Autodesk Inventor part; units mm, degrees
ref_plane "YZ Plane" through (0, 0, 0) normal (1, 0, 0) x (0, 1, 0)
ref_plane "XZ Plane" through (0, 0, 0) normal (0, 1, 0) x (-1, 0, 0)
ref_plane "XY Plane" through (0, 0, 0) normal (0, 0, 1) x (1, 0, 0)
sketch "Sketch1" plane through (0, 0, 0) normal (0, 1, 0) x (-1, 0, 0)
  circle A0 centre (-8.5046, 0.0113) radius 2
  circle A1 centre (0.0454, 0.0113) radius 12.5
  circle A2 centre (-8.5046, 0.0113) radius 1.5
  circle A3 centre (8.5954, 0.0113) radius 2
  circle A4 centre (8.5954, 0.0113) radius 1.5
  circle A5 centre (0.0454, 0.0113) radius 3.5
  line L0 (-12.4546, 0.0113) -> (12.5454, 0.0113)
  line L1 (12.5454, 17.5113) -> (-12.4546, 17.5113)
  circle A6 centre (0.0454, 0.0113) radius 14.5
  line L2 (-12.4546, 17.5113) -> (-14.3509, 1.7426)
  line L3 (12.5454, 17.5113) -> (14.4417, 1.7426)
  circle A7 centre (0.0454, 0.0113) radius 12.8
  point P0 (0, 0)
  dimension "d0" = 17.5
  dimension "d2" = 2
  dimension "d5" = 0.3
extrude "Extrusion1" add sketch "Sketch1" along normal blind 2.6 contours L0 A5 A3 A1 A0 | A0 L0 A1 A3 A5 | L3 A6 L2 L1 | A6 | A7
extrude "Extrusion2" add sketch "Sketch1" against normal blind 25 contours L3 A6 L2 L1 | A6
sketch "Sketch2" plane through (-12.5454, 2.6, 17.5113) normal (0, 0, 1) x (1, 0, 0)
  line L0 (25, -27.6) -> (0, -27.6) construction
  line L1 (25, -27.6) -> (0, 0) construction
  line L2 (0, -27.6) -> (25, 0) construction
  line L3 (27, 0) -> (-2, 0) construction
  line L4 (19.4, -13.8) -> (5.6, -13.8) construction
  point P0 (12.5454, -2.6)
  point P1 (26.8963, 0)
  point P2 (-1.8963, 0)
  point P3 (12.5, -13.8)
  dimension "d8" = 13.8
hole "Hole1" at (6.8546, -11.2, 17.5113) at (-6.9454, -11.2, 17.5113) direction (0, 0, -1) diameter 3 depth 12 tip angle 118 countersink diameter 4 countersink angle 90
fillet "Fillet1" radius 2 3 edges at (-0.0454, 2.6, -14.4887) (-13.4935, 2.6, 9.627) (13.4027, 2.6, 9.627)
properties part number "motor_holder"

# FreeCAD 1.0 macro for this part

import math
import FreeCAD as App
import Part
import Sketcher

V = App.Vector


def edges_at(feature, points):
    """Names of the edges that pass closest to the given points."""
    edges = feature.Shape.Edges
    near = lambda p: min(range(len(edges)), key=lambda i: edges[i].distToShape(Part.Vertex(*p))[0])
    return sorted({f"Edge{near(p) + 1}" for p in points})

doc = App.newDocument("Part")
params = doc.addObject("Spreadsheet::Sheet", "Params")
for row, (alias, value) in enumerate([
    ("sketch1_diameter", "4 mm"),
    ("sketch1_diameter2", "7 mm"),
    ("sketch1_radius", "14.5 mm"),
    ("sketch1_width", "25 mm"),
    ("pad1_length", "2.6 mm"),
    ("sketch2_diameter", "25.6 mm"),
    ("sketch2_radius", "14.5 mm"),
    ("sketch2_width", "25 mm"),
    ("pad2_length", "25 mm"),
    ("sketch3_diameter", "3 mm"),
    ("hole_diameter", "3 mm"),
    ("hole_depth", "12 mm"),
    ("hole_csink_diameter", "4 mm"),
    ("fillet_radius", "2 mm"),
], start=1):
    params.set(f"A{row}", alias)
    params.set(f"B{row}", "=" + value)
    params.setAlias(f"B{row}", alias)

body = doc.addObject("PartDesign::Body", "Body")

sketch1 = body.newObject("Sketcher::SketchObject", "Sketch")
sketch1.AttachmentSupport = (doc.getObject("XZ_Plane"), [""])
sketch1.MapMode = "FlatFace"
sketch1.addGeometry(Part.LineSegment(V(-14.4, 1.7, 0), V(-12.5, 17.5, 0)), False)
sketch1.addGeometry(Part.LineSegment(V(-12.5, 17.5, 0), V(12.5, 17.5, 0)), False)
sketch1.addGeometry(Part.LineSegment(V(12.5, 17.5, 0), V(14.4, 1.7, 0)), False)
sketch1.addGeometry(Part.ArcOfCircle(Part.Circle(V(0, 0, 0), V(0, 0, 1), 14.5), math.radians(173), math.radians(367)), False)
sketch1.addGeometry(Part.Circle(V(0, 0, 0), V(0, 0, 1), 3.5), False)
sketch1.addGeometry(Part.Circle(V(-8.6, 0, 0), V(0, 0, 1), 2), False)
sketch1.addGeometry(Part.Circle(V(8.5, 0, 0), V(0, 0, 1), 2), False)
sketch1.addConstraint(Sketcher.Constraint("Coincident", 0, 2, 1, 1))
sketch1.addConstraint(Sketcher.Constraint("Coincident", 1, 2, 2, 1))
sketch1.addConstraint(Sketcher.Constraint("Tangent", 2, 2, 3, 2))
sketch1.addConstraint(Sketcher.Constraint("Tangent", 3, 1, 0, 1))
sketch1.addConstraint(Sketcher.Constraint("Horizontal", 1))
sketch1.addConstraint(Sketcher.Constraint("Coincident", 4, 3, 3, 3))
sketch1.addConstraint(Sketcher.Constraint("Equal", 5, 6))
sketch1.addConstraint(Sketcher.Constraint("Horizontal", 4, 3, 5, 3))
sketch1.addConstraint(Sketcher.Constraint("Horizontal", 5, 3, 6, 3))
sketch1.addConstraint(Sketcher.Constraint("Horizontal", 2, 2, 3, 1))
sketch1.addConstraint(Sketcher.Constraint("Diameter", 5, 4.0))
sketch1.addConstraint(Sketcher.Constraint("Diameter", 4, 7.0))
sketch1.addConstraint(Sketcher.Constraint("Radius", 3, 14.5))
sketch1.addConstraint(Sketcher.Constraint("DistanceY", 5, 3, 0, 2, 17.5))
sketch1.addConstraint(Sketcher.Constraint("DistanceX", 1, 1, 1, 2, 25.0))
sketch1.addConstraint(Sketcher.Constraint("DistanceX", 5, 3, 6, 3, 17.1))
sketch1.addConstraint(Sketcher.Constraint("DistanceX", 5, 3, 3, 3, 8.55))
sketch1.addConstraint(Sketcher.Constraint("DistanceX", -1, 1, 2, 2, 14.351))
sketch1.addConstraint(Sketcher.Constraint("DistanceY", -1, 1, 3, 3, 0.0113))
sketch1.setExpression("Constraints[10]", "Params.sketch1_diameter")
sketch1.setExpression("Constraints[11]", "Params.sketch1_diameter2")
sketch1.setExpression("Constraints[12]", "Params.sketch1_radius")
sketch1.setExpression("Constraints[14]", "Params.sketch1_width")
pad1 = body.newObject("PartDesign::Pad", "Pad")
pad1.Profile = sketch1
pad1.setExpression("Length", "Params.pad1_length")
pad1.Reversed = True

sketch2 = body.newObject("Sketcher::SketchObject", "Sketch001")
sketch2.AttachmentSupport = (doc.getObject("XZ_Plane"), [""])
sketch2.MapMode = "FlatFace"
sketch2.addGeometry(Part.LineSegment(V(-14, 2, 0), V(-13, 18, 0)), False)
sketch2.addGeometry(Part.LineSegment(V(-13, 18, 0), V(12, 18, 0)), False)
sketch2.addGeometry(Part.LineSegment(V(12, 18, 0), V(14, 2, 0)), False)
sketch2.addGeometry(Part.ArcOfCircle(Part.Circle(V(0, 0, 0), V(0, 0, 1), 14), math.radians(173), math.radians(367)), False)
sketch2.addGeometry(Part.Circle(V(0, 0, 0), V(0, 0, 1), 13), False)
sketch2.addConstraint(Sketcher.Constraint("Coincident", 0, 2, 1, 1))
sketch2.addConstraint(Sketcher.Constraint("Coincident", 1, 2, 2, 1))
sketch2.addConstraint(Sketcher.Constraint("Tangent", 2, 2, 3, 2))
sketch2.addConstraint(Sketcher.Constraint("Tangent", 3, 1, 0, 1))
sketch2.addConstraint(Sketcher.Constraint("Horizontal", 1))
sketch2.addConstraint(Sketcher.Constraint("Coincident", 4, 3, 3, 3))
sketch2.addConstraint(Sketcher.Constraint("Horizontal", 2, 2, 3, 1))
sketch2.addConstraint(Sketcher.Constraint("Diameter", 4, 25.6))
sketch2.addConstraint(Sketcher.Constraint("Radius", 3, 14.5))
sketch2.addConstraint(Sketcher.Constraint("DistanceY", 3, 3, 0, 2, 17.5))
sketch2.addConstraint(Sketcher.Constraint("DistanceX", 1, 1, 1, 2, 25.0))
sketch2.addConstraint(Sketcher.Constraint("DistanceX", -1, 1, 2, 2, 14.351))
sketch2.addConstraint(Sketcher.Constraint("DistanceY", -1, 1, 3, 3, 0.0113))
sketch2.setExpression("Constraints[7]", "Params.sketch2_diameter")
sketch2.setExpression("Constraints[8]", "Params.sketch2_radius")
sketch2.setExpression("Constraints[10]", "Params.sketch2_width")
pad2 = body.newObject("PartDesign::Pad", "Pad001")
pad2.Profile = sketch2
pad2.setExpression("Length", "Params.pad2_length")

sketch3 = body.newObject("Sketcher::SketchObject", "Sketch002")
sketch3.AttachmentSupport = (doc.getObject("XY_Plane"), [""])
sketch3.MapMode = "FlatFace"
sketch3.AttachmentOffset = App.Placement(V(0, 0, 17.5113), App.Rotation())
sketch3.addGeometry(Part.Circle(V(6.9, -11.2, 0), V(0, 0, 1), 1.5), False)
sketch3.addGeometry(Part.Circle(V(-6.9, -11.2, 0), V(0, 0, 1), 1.5), False)
sketch3.addConstraint(Sketcher.Constraint("Equal", 0, 1))
sketch3.addConstraint(Sketcher.Constraint("Horizontal", 0, 3, 1, 3))
sketch3.addConstraint(Sketcher.Constraint("Diameter", 0, 3.0))
sketch3.addConstraint(Sketcher.Constraint("DistanceY", 0, 3, -1, 1, 11.2))
sketch3.addConstraint(Sketcher.Constraint("DistanceX", 1, 3, 0, 3, 13.8))
sketch3.addConstraint(Sketcher.Constraint("DistanceX", -1, 1, 0, 3, 6.8546))
sketch3.setExpression("Constraints[2]", "Params.sketch3_diameter")
doc.recompute()
hole = body.newObject("PartDesign::Hole", "Hole")
hole.Profile = sketch3
hole.ThreadType = "None"
hole.setExpression("Diameter", "Params.hole_diameter")
hole.DepthType = "Dimension"
hole.setExpression("Depth", "Params.hole_depth")
hole.DrillPoint = "Angled"
hole.DrillPointAngle = 118
hole.HoleCutType = "Countersink"
hole.setExpression("HoleCutDiameter", "Params.hole_csink_diameter")
hole.HoleCutCountersinkAngle = 90
doc.recompute()

fillet = body.newObject("PartDesign::Fillet", "Fillet")
fillet.Base = (hole, edges_at(hole, [(-0.045, 2.6, -14.489), (-13.493, 2.6, 9.627), (13.403, 2.6, 9.627)]))
fillet.setExpression("Radius", "Params.fillet_radius")

doc.recompute()
